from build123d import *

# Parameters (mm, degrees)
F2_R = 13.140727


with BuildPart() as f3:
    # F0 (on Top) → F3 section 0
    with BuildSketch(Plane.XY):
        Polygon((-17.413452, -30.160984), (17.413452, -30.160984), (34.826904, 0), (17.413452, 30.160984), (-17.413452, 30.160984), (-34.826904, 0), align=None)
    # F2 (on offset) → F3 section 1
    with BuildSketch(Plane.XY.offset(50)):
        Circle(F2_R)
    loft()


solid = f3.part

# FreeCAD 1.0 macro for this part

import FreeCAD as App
import Part
import Sketcher
from FreeCAD import Vector
Q = App.Units.Quantity


def add_polygon(sketch, points):
    """Adds a closed chain of lines whose ends are joined by coincident constraints."""
    first, n = sketch.GeometryCount, len(points)
    for a, b in zip(points, points[1:] + points[:1]):
        sketch.addGeometry(Part.LineSegment(App.Vector(*a, 0), App.Vector(*b, 0)), False)
    for i in range(n):
        sketch.addConstraint(Sketcher.Constraint("Coincident", first + i, 2, first + (i + 1) % n, 1))

doc = App.newDocument("Part")
body = doc.addObject("PartDesign::Body", "Body")

# Sketch on XY plane
sketch1 = body.newObject("Sketcher::SketchObject", "Sketch")
sketch1.AttachmentSupport = (doc.getObject("XY_Plane"), [""])
sketch1.MapMode = "FlatFace"
add_polygon(sketch1, [(-17.413452, -30.160984), (17.413452, -30.160984), (34.826904, 0), (17.413452, 30.160984), (-17.413452, 30.160984), (-34.826904, 0)])  # lines 0-5
sketch1.addConstraint(Sketcher.Constraint("Horizontal", 0))
sketch1.addConstraint(Sketcher.Constraint("Horizontal", 3))
sketch1.addConstraint(Sketcher.Constraint("Symmetric", 0, 2, 3, 2, -1, 1))
sketch1.addConstraint(Sketcher.Constraint("Symmetric", 1, 2, 4, 2, -1, 1))
sketch1.addConstraint(Sketcher.Constraint("PointOnObject", 1, 2, -1))
sketch1.addConstraint(Sketcher.Constraint("Parallel", 2, 5))
sketch1.addConstraint(Sketcher.Constraint("Vertical", 0, 2, 2, 2))
sketch1.addConstraint(Sketcher.Constraint("Angle", 1, Q("60 deg")))
sketch1.addConstraint(Sketcher.Constraint("DistanceX", 0, 1, 0, 2, 34.826904))
sketch1.addConstraint(Sketcher.Constraint("DistanceX", 0, 2, 1, 2, 17.413452))

# Sketch on XY plane
sketch2 = body.newObject("Sketcher::SketchObject", "Sketch001")
sketch2.AttachmentSupport = (doc.getObject("XY_Plane"), [""])
sketch2.MapMode = "FlatFace"
sketch2.AttachmentOffset = App.Placement(Vector(0, 0, 50), App.Rotation())
sketch2.addGeometry(Part.Circle(Vector(0, 0, 0), Vector(0, 0, 1), 13.140727), False)
sketch2.addConstraint(Sketcher.Constraint("Coincident", 0, 3, -1, 1))
sketch2.addConstraint(Sketcher.Constraint("Diameter", 0, 26.281454))

additiveloft = body.newObject("PartDesign::AdditiveLoft", "AdditiveLoft")
additiveloft.Profile = sketch1
additiveloft.Sections = [sketch2]

doc.recompute()
